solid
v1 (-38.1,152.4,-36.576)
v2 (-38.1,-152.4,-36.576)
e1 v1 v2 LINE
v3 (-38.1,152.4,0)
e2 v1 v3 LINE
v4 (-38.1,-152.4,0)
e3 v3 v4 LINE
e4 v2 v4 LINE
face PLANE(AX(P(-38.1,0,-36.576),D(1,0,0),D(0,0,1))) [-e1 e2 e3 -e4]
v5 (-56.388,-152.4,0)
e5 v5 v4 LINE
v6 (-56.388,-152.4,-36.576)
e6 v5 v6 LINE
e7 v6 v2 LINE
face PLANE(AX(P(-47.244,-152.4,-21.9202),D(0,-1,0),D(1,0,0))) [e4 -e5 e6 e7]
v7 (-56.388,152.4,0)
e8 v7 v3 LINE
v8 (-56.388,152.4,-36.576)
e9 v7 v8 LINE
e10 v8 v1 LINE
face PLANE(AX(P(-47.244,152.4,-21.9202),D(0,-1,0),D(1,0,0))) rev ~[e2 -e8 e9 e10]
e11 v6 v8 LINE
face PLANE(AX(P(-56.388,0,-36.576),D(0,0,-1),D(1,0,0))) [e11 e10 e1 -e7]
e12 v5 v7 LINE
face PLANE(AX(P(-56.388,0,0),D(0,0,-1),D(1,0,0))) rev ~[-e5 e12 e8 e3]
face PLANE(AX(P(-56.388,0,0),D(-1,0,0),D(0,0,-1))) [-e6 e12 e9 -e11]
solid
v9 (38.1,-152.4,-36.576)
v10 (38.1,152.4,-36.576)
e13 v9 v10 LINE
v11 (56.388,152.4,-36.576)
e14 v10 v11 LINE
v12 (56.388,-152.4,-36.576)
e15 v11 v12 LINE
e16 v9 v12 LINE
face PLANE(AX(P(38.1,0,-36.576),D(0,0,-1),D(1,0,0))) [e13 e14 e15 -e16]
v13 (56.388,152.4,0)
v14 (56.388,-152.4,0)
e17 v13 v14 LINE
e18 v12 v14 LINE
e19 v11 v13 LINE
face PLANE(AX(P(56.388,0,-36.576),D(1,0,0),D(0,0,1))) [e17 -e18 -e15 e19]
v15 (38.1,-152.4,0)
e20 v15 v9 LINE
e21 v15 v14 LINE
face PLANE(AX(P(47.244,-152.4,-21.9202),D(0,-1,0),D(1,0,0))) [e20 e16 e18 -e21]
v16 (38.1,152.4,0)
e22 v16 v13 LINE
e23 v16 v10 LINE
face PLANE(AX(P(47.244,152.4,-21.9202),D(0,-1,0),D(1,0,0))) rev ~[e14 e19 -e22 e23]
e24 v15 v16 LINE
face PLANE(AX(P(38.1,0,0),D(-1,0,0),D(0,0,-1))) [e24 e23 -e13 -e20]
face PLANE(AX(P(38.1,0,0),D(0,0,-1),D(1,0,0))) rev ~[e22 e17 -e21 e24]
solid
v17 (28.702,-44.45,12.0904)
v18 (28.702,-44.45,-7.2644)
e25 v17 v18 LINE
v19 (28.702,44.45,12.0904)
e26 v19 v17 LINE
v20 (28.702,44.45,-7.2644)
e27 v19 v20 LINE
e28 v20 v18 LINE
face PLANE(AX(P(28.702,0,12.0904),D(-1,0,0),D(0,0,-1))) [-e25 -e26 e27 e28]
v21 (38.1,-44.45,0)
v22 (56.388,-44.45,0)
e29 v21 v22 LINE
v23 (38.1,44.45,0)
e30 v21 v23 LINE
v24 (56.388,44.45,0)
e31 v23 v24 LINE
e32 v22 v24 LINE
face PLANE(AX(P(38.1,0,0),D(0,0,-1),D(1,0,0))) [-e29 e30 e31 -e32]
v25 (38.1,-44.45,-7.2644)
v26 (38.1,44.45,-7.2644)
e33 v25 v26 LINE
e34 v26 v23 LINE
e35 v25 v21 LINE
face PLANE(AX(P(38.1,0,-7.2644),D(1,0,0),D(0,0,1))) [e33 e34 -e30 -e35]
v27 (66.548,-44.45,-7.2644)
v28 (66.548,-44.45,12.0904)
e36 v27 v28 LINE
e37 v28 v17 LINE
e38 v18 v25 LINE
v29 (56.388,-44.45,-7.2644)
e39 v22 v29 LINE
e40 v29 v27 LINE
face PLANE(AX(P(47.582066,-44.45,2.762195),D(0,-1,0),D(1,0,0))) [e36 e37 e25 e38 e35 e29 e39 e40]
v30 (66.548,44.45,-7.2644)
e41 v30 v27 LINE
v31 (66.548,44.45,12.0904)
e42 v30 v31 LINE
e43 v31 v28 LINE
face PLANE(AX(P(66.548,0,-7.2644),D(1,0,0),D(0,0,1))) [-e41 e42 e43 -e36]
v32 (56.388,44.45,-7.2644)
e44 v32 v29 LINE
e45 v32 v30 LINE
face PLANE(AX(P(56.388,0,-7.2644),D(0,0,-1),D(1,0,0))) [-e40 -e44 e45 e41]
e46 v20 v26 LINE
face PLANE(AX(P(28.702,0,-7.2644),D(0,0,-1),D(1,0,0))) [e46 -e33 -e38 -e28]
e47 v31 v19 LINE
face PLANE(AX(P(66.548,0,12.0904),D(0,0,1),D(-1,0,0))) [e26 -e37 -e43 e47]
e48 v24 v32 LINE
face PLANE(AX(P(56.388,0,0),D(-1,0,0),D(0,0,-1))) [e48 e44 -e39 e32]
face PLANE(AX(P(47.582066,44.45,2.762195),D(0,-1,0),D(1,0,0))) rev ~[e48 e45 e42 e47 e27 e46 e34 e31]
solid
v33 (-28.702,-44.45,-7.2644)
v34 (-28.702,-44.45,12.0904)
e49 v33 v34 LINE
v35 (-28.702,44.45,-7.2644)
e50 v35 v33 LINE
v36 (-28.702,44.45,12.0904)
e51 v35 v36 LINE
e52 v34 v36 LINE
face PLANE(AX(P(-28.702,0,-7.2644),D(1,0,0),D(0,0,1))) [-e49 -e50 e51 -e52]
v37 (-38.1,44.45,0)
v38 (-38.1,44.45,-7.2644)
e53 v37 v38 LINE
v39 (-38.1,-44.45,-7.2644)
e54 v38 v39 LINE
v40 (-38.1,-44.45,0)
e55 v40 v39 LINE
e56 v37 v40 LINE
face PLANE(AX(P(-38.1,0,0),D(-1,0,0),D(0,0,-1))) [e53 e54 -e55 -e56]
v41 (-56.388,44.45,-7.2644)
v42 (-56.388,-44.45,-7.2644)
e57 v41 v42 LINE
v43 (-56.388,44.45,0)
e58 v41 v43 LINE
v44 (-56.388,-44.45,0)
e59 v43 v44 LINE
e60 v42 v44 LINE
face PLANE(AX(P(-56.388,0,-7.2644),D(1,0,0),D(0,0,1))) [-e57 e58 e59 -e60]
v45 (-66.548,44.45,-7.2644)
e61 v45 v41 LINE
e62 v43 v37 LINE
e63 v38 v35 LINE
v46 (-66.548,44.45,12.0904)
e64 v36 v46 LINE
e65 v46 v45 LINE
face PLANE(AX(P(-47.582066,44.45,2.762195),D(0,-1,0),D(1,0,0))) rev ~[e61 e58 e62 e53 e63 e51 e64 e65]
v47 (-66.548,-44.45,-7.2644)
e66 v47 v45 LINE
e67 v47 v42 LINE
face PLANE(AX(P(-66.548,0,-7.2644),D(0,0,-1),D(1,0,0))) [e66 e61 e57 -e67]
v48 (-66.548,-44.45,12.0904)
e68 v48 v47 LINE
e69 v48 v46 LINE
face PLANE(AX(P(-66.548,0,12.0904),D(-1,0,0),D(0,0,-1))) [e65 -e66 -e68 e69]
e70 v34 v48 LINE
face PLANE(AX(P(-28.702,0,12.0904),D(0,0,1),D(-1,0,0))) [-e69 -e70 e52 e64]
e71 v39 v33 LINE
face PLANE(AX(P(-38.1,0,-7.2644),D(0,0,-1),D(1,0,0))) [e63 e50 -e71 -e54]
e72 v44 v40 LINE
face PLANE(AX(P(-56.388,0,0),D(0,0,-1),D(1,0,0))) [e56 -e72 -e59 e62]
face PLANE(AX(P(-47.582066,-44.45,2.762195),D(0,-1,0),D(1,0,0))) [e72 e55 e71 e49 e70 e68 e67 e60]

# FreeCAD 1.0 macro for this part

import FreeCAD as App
import Part
import Sketcher
Q = App.Units.Quantity


def add_polygon(sketch, points):
    """Adds a closed chain of lines whose ends are joined by coincident constraints."""
    first, n = sketch.GeometryCount, len(points)
    for a, b in zip(points, points[1:] + points[:1]):
        sketch.addGeometry(Part.LineSegment(App.Vector(*a, 0), App.Vector(*b, 0)), False)
    for i in range(n):
        sketch.addConstraint(Sketcher.Constraint("Coincident", first + i, 2, first + (i + 1) % n, 1))

doc = App.newDocument("Part")
body = doc.addObject("PartDesign::Body", "Body")
body.AllowCompound = True

sketch1 = body.newObject("Sketcher::SketchObject", "Sketch")
sketch1.AttachmentSupport = (doc.getObject("XZ_Plane"), [""])
sketch1.MapMode = "FlatFace"
add_polygon(sketch1, [(-56, -37), (-38, -37), (-38, 0), (-56, 0)])
add_polygon(sketch1, [(38, -37), (56, -37), (56, 0), (38, 0)])
sketch1.addConstraint(Sketcher.Constraint("Horizontal", 0))
sketch1.addConstraint(Sketcher.Constraint("Vertical", 1))
sketch1.addConstraint(Sketcher.Constraint("Horizontal", 2))
sketch1.addConstraint(Sketcher.Constraint("Vertical", 3))
sketch1.addConstraint(Sketcher.Constraint("Horizontal", 4))
sketch1.addConstraint(Sketcher.Constraint("Vertical", 5))
sketch1.addConstraint(Sketcher.Constraint("Horizontal", 6))
sketch1.addConstraint(Sketcher.Constraint("Vertical", 7))
sketch1.addConstraint(Sketcher.Constraint("Symmetric", 2, 2, 5, 2, -1, 1))
sketch1.addConstraint(Sketcher.Constraint("Symmetric", 1, 2, 6, 2, -2))
sketch1.addConstraint(Sketcher.Constraint("Horizontal", 3, 2, 4, 2))
sketch1.addConstraint(Sketcher.Constraint("DistanceX", 1, 2, 6, 2, Q("3 in")))
sketch1.addConstraint(Sketcher.Constraint("DistanceX", 0, 1, 0, 2, Q("0.72 in")))
sketch1.addConstraint(Sketcher.Constraint("DistanceY", 1, 1, 1, 2, Q("1.44 in")))
pad1 = body.newObject("PartDesign::Pad", "Pad")
pad1.Profile = sketch1
pad1.Type = "TwoLengths"
pad1.Length = Q("6 in")
pad1.Length2 = Q("6 in")
body2 = doc.addObject("PartDesign::Body", "Body001")
body2.AllowCompound = True

sketch2 = body2.newObject("Sketcher::SketchObject", "Sketch001")
sketch2.AttachmentSupport = (doc.getObject("XZ_Plane001"), [""])
sketch2.MapMode = "FlatFace"
add_polygon(sketch2, [(-67, -7), (-56, -7), (-56, 0), (-38, 0), (-38, -7), (-29, -7), (-29, 12), (-67, 12)])
add_polygon(sketch2, [(56, 0), (56, -7), (67, -7), (67, 12), (29, 12), (29, -7), (38, -7), (38, 0)])
sketch2.addConstraint(Sketcher.Constraint("Horizontal", 0))
sketch2.addConstraint(Sketcher.Constraint("Vertical", 1))
sketch2.addConstraint(Sketcher.Constraint("Horizontal", 2))
sketch2.addConstraint(Sketcher.Constraint("Vertical", 3))
sketch2.addConstraint(Sketcher.Constraint("Horizontal", 4))
sketch2.addConstraint(Sketcher.Constraint("Vertical", 5))
sketch2.addConstraint(Sketcher.Constraint("Horizontal", 6))
sketch2.addConstraint(Sketcher.Constraint("Vertical", 7))
sketch2.addConstraint(Sketcher.Constraint("Vertical", 8))
sketch2.addConstraint(Sketcher.Constraint("Horizontal", 9))
sketch2.addConstraint(Sketcher.Constraint("Vertical", 10))
sketch2.addConstraint(Sketcher.Constraint("Horizontal", 11))
sketch2.addConstraint(Sketcher.Constraint("Vertical", 12))
sketch2.addConstraint(Sketcher.Constraint("Horizontal", 13))
sketch2.addConstraint(Sketcher.Constraint("Vertical", 14))
sketch2.addConstraint(Sketcher.Constraint("Horizontal", 15))
sketch2.addConstraint(Sketcher.Constraint("Symmetric", 2, 2, 14, 2, -1, 1))
sketch2.addConstraint(Sketcher.Constraint("Symmetric", 0, 2, 8, 2, -2))
sketch2.addConstraint(Sketcher.Constraint("Symmetric", 6, 2, 10, 2, -2))
sketch2.addConstraint(Sketcher.Constraint("Symmetric", 4, 2, 12, 2, -2))
sketch2.addConstraint(Sketcher.Constraint("PointOnObject", 1, 2, -1))
sketch2.addConstraint(Sketcher.Constraint("Horizontal", 0, 2, 3, 2))
sketch2.addConstraint(Sketcher.Constraint("DistanceX", 0, 1, 0, 2, Q("0.4 in")))
sketch2.addConstraint(Sketcher.Constraint("DistanceX", 2, 1, 2, 2, Q("0.72 in")))
sketch2.addConstraint(Sketcher.Constraint("DistanceX", 4, 1, 4, 2, Q("0.37 in")))
sketch2.addConstraint(Sketcher.Constraint("DistanceX", 2, 2, -1, 1, Q("1.5 in")))
sketch2.addConstraint(Sketcher.Constraint("DistanceY", 1, 1, 1, 2, Q("0.286 in")))
sketch2.addConstraint(Sketcher.Constraint("DistanceY", 5, 1, 5, 2, Q("0.762 in")))
pad2 = body2.newObject("PartDesign::Pad", "Pad001")
pad2.Profile = sketch2
pad2.Type = "TwoLengths"
pad2.Length = Q("1.75 in")
pad2.Length2 = Q("1.75 in")

doc.recompute()
